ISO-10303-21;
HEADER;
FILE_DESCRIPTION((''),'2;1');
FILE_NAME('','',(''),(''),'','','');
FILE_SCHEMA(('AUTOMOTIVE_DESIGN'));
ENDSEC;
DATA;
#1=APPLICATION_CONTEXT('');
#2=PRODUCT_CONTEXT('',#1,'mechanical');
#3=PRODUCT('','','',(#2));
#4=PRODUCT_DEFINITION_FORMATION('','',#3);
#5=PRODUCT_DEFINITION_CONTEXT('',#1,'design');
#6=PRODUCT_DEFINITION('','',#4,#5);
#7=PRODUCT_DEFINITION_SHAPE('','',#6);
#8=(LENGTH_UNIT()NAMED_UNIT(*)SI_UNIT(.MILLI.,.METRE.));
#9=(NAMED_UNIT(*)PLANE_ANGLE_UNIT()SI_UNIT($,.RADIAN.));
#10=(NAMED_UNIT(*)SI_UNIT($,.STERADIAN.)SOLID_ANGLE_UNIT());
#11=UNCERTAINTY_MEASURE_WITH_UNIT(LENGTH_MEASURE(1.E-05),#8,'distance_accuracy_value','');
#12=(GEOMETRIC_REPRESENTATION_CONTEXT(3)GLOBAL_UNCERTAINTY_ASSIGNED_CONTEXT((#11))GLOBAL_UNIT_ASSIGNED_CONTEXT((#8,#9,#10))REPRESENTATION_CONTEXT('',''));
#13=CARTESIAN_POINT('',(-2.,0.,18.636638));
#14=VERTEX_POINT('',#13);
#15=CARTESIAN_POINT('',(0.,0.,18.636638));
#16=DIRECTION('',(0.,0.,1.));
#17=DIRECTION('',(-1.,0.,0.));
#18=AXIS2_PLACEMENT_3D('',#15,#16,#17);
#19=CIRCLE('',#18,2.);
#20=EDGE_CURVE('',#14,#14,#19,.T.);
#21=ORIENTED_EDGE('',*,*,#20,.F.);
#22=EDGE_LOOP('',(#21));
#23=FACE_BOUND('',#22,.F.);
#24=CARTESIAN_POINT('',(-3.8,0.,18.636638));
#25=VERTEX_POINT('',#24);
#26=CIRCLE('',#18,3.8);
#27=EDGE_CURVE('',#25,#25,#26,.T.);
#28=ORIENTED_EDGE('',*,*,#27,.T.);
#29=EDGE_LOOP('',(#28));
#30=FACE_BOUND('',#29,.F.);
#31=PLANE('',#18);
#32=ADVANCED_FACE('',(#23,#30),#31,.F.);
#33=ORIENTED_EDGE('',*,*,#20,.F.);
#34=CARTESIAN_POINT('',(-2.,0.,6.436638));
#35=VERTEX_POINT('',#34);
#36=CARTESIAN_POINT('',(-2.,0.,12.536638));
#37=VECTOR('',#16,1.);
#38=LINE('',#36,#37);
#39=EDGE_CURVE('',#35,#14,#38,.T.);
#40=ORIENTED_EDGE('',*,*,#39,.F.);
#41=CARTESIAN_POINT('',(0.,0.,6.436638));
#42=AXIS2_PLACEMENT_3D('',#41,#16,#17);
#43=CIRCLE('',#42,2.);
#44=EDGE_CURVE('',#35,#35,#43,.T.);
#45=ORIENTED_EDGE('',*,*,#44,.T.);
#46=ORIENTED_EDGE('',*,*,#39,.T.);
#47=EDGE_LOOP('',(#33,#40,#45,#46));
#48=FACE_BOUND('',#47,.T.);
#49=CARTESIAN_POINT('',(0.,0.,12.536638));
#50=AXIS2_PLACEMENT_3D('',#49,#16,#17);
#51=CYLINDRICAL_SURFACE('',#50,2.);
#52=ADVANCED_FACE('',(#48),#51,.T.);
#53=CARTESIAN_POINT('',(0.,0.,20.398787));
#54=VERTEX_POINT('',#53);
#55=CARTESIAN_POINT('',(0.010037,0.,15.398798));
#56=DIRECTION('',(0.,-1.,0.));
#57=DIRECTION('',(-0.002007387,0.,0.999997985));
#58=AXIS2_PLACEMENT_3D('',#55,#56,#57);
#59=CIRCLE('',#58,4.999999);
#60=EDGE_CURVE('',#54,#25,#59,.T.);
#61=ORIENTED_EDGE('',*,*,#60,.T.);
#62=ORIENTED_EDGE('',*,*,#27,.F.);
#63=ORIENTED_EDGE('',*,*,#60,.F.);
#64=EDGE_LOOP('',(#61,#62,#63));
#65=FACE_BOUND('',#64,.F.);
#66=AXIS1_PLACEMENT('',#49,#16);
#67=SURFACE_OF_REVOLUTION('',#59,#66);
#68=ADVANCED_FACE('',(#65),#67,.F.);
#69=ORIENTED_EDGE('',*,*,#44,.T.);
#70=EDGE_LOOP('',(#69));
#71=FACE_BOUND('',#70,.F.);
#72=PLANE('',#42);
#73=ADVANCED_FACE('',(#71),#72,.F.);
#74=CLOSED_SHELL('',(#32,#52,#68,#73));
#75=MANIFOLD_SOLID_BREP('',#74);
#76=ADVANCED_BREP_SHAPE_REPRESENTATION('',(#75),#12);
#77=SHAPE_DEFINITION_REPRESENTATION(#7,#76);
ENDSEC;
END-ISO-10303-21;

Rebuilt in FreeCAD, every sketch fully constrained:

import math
import FreeCAD as App
import Part
import Sketcher

V = App.Vector
Q = App.Units.Quantity

doc = App.newDocument("Part")
body = doc.addObject("PartDesign::Body", "Body")

# Sketch on XZ plane
sketch1 = doc.addObject("Sketcher::SketchObject", "Sketch")
body.addObject(sketch1)
sketch1.AttachmentSupport = (doc.XZ_Plane, [""])
sketch1.MapMode = "FlatFace"
sketch1.addGeometry(Part.ArcOfCircle(Part.Circle(V(0, 15.4, 0), V(0, 0, 1), 5), math.radians(90), math.radians(140)), False)
sketch1.addGeometry(Part.LineSegment(V(-3.8, 18.6, 0), V(-2, 18.6, 0)), False)
sketch1.addGeometry(Part.LineSegment(V(-2, 18.6, 0), V(-2, 6.4, 0)), False)
sketch1.addGeometry(Part.LineSegment(V(-2, 6.4, 0), V(0, 6.4, 0)), False)
sketch1.addGeometry(Part.LineSegment(V(0, 6.4, 0), V(0, 20.4, 0)), False)
sketch1.addConstraint(Sketcher.Constraint("Coincident", 0, 2, 1, 1))
sketch1.addConstraint(Sketcher.Constraint("Coincident", 1, 2, 2, 1))
sketch1.addConstraint(Sketcher.Constraint("Coincident", 2, 2, 3, 1))
sketch1.addConstraint(Sketcher.Constraint("Coincident", 3, 2, 4, 1))
sketch1.addConstraint(Sketcher.Constraint("Coincident", 4, 2, 0, 1))
sketch1.addConstraint(Sketcher.Constraint("Horizontal", 1))
sketch1.addConstraint(Sketcher.Constraint("Vertical", 2))
sketch1.addConstraint(Sketcher.Constraint("Horizontal", 3))
sketch1.addConstraint(Sketcher.Constraint("Vertical", 4))
sketch1.addConstraint(Sketcher.Constraint("PointOnObject", 3, 2, -2))
sketch1.addConstraint(Sketcher.Constraint("Radius", 0, Q("4.999999 mm")))
sketch1.addConstraint(Sketcher.Constraint("DistanceX", 3, 1, 3, 2, Q("2 mm")))
sketch1.addConstraint(Sketcher.Constraint("DistanceX", 1, 1, 1, 2, Q("1.8 mm")))
sketch1.addConstraint(Sketcher.Constraint("DistanceY", 2, 2, 2, 1, Q("12.2 mm")))
sketch1.addConstraint(Sketcher.Constraint("DistanceY", 4, 1, 4, 2, Q("13.962149 mm")))
sketch1.addConstraint(Sketcher.Constraint("DistanceY", -1, 1, 0, 3, Q("15.398798 mm")))
revolution = doc.addObject("PartDesign::Revolution", "Revolution")
body.addObject(revolution)
revolution.Profile = sketch1
revolution.ReferenceAxis = (sketch1, ["V_Axis"])
revolution.Angle = 360

doc.recompute()
